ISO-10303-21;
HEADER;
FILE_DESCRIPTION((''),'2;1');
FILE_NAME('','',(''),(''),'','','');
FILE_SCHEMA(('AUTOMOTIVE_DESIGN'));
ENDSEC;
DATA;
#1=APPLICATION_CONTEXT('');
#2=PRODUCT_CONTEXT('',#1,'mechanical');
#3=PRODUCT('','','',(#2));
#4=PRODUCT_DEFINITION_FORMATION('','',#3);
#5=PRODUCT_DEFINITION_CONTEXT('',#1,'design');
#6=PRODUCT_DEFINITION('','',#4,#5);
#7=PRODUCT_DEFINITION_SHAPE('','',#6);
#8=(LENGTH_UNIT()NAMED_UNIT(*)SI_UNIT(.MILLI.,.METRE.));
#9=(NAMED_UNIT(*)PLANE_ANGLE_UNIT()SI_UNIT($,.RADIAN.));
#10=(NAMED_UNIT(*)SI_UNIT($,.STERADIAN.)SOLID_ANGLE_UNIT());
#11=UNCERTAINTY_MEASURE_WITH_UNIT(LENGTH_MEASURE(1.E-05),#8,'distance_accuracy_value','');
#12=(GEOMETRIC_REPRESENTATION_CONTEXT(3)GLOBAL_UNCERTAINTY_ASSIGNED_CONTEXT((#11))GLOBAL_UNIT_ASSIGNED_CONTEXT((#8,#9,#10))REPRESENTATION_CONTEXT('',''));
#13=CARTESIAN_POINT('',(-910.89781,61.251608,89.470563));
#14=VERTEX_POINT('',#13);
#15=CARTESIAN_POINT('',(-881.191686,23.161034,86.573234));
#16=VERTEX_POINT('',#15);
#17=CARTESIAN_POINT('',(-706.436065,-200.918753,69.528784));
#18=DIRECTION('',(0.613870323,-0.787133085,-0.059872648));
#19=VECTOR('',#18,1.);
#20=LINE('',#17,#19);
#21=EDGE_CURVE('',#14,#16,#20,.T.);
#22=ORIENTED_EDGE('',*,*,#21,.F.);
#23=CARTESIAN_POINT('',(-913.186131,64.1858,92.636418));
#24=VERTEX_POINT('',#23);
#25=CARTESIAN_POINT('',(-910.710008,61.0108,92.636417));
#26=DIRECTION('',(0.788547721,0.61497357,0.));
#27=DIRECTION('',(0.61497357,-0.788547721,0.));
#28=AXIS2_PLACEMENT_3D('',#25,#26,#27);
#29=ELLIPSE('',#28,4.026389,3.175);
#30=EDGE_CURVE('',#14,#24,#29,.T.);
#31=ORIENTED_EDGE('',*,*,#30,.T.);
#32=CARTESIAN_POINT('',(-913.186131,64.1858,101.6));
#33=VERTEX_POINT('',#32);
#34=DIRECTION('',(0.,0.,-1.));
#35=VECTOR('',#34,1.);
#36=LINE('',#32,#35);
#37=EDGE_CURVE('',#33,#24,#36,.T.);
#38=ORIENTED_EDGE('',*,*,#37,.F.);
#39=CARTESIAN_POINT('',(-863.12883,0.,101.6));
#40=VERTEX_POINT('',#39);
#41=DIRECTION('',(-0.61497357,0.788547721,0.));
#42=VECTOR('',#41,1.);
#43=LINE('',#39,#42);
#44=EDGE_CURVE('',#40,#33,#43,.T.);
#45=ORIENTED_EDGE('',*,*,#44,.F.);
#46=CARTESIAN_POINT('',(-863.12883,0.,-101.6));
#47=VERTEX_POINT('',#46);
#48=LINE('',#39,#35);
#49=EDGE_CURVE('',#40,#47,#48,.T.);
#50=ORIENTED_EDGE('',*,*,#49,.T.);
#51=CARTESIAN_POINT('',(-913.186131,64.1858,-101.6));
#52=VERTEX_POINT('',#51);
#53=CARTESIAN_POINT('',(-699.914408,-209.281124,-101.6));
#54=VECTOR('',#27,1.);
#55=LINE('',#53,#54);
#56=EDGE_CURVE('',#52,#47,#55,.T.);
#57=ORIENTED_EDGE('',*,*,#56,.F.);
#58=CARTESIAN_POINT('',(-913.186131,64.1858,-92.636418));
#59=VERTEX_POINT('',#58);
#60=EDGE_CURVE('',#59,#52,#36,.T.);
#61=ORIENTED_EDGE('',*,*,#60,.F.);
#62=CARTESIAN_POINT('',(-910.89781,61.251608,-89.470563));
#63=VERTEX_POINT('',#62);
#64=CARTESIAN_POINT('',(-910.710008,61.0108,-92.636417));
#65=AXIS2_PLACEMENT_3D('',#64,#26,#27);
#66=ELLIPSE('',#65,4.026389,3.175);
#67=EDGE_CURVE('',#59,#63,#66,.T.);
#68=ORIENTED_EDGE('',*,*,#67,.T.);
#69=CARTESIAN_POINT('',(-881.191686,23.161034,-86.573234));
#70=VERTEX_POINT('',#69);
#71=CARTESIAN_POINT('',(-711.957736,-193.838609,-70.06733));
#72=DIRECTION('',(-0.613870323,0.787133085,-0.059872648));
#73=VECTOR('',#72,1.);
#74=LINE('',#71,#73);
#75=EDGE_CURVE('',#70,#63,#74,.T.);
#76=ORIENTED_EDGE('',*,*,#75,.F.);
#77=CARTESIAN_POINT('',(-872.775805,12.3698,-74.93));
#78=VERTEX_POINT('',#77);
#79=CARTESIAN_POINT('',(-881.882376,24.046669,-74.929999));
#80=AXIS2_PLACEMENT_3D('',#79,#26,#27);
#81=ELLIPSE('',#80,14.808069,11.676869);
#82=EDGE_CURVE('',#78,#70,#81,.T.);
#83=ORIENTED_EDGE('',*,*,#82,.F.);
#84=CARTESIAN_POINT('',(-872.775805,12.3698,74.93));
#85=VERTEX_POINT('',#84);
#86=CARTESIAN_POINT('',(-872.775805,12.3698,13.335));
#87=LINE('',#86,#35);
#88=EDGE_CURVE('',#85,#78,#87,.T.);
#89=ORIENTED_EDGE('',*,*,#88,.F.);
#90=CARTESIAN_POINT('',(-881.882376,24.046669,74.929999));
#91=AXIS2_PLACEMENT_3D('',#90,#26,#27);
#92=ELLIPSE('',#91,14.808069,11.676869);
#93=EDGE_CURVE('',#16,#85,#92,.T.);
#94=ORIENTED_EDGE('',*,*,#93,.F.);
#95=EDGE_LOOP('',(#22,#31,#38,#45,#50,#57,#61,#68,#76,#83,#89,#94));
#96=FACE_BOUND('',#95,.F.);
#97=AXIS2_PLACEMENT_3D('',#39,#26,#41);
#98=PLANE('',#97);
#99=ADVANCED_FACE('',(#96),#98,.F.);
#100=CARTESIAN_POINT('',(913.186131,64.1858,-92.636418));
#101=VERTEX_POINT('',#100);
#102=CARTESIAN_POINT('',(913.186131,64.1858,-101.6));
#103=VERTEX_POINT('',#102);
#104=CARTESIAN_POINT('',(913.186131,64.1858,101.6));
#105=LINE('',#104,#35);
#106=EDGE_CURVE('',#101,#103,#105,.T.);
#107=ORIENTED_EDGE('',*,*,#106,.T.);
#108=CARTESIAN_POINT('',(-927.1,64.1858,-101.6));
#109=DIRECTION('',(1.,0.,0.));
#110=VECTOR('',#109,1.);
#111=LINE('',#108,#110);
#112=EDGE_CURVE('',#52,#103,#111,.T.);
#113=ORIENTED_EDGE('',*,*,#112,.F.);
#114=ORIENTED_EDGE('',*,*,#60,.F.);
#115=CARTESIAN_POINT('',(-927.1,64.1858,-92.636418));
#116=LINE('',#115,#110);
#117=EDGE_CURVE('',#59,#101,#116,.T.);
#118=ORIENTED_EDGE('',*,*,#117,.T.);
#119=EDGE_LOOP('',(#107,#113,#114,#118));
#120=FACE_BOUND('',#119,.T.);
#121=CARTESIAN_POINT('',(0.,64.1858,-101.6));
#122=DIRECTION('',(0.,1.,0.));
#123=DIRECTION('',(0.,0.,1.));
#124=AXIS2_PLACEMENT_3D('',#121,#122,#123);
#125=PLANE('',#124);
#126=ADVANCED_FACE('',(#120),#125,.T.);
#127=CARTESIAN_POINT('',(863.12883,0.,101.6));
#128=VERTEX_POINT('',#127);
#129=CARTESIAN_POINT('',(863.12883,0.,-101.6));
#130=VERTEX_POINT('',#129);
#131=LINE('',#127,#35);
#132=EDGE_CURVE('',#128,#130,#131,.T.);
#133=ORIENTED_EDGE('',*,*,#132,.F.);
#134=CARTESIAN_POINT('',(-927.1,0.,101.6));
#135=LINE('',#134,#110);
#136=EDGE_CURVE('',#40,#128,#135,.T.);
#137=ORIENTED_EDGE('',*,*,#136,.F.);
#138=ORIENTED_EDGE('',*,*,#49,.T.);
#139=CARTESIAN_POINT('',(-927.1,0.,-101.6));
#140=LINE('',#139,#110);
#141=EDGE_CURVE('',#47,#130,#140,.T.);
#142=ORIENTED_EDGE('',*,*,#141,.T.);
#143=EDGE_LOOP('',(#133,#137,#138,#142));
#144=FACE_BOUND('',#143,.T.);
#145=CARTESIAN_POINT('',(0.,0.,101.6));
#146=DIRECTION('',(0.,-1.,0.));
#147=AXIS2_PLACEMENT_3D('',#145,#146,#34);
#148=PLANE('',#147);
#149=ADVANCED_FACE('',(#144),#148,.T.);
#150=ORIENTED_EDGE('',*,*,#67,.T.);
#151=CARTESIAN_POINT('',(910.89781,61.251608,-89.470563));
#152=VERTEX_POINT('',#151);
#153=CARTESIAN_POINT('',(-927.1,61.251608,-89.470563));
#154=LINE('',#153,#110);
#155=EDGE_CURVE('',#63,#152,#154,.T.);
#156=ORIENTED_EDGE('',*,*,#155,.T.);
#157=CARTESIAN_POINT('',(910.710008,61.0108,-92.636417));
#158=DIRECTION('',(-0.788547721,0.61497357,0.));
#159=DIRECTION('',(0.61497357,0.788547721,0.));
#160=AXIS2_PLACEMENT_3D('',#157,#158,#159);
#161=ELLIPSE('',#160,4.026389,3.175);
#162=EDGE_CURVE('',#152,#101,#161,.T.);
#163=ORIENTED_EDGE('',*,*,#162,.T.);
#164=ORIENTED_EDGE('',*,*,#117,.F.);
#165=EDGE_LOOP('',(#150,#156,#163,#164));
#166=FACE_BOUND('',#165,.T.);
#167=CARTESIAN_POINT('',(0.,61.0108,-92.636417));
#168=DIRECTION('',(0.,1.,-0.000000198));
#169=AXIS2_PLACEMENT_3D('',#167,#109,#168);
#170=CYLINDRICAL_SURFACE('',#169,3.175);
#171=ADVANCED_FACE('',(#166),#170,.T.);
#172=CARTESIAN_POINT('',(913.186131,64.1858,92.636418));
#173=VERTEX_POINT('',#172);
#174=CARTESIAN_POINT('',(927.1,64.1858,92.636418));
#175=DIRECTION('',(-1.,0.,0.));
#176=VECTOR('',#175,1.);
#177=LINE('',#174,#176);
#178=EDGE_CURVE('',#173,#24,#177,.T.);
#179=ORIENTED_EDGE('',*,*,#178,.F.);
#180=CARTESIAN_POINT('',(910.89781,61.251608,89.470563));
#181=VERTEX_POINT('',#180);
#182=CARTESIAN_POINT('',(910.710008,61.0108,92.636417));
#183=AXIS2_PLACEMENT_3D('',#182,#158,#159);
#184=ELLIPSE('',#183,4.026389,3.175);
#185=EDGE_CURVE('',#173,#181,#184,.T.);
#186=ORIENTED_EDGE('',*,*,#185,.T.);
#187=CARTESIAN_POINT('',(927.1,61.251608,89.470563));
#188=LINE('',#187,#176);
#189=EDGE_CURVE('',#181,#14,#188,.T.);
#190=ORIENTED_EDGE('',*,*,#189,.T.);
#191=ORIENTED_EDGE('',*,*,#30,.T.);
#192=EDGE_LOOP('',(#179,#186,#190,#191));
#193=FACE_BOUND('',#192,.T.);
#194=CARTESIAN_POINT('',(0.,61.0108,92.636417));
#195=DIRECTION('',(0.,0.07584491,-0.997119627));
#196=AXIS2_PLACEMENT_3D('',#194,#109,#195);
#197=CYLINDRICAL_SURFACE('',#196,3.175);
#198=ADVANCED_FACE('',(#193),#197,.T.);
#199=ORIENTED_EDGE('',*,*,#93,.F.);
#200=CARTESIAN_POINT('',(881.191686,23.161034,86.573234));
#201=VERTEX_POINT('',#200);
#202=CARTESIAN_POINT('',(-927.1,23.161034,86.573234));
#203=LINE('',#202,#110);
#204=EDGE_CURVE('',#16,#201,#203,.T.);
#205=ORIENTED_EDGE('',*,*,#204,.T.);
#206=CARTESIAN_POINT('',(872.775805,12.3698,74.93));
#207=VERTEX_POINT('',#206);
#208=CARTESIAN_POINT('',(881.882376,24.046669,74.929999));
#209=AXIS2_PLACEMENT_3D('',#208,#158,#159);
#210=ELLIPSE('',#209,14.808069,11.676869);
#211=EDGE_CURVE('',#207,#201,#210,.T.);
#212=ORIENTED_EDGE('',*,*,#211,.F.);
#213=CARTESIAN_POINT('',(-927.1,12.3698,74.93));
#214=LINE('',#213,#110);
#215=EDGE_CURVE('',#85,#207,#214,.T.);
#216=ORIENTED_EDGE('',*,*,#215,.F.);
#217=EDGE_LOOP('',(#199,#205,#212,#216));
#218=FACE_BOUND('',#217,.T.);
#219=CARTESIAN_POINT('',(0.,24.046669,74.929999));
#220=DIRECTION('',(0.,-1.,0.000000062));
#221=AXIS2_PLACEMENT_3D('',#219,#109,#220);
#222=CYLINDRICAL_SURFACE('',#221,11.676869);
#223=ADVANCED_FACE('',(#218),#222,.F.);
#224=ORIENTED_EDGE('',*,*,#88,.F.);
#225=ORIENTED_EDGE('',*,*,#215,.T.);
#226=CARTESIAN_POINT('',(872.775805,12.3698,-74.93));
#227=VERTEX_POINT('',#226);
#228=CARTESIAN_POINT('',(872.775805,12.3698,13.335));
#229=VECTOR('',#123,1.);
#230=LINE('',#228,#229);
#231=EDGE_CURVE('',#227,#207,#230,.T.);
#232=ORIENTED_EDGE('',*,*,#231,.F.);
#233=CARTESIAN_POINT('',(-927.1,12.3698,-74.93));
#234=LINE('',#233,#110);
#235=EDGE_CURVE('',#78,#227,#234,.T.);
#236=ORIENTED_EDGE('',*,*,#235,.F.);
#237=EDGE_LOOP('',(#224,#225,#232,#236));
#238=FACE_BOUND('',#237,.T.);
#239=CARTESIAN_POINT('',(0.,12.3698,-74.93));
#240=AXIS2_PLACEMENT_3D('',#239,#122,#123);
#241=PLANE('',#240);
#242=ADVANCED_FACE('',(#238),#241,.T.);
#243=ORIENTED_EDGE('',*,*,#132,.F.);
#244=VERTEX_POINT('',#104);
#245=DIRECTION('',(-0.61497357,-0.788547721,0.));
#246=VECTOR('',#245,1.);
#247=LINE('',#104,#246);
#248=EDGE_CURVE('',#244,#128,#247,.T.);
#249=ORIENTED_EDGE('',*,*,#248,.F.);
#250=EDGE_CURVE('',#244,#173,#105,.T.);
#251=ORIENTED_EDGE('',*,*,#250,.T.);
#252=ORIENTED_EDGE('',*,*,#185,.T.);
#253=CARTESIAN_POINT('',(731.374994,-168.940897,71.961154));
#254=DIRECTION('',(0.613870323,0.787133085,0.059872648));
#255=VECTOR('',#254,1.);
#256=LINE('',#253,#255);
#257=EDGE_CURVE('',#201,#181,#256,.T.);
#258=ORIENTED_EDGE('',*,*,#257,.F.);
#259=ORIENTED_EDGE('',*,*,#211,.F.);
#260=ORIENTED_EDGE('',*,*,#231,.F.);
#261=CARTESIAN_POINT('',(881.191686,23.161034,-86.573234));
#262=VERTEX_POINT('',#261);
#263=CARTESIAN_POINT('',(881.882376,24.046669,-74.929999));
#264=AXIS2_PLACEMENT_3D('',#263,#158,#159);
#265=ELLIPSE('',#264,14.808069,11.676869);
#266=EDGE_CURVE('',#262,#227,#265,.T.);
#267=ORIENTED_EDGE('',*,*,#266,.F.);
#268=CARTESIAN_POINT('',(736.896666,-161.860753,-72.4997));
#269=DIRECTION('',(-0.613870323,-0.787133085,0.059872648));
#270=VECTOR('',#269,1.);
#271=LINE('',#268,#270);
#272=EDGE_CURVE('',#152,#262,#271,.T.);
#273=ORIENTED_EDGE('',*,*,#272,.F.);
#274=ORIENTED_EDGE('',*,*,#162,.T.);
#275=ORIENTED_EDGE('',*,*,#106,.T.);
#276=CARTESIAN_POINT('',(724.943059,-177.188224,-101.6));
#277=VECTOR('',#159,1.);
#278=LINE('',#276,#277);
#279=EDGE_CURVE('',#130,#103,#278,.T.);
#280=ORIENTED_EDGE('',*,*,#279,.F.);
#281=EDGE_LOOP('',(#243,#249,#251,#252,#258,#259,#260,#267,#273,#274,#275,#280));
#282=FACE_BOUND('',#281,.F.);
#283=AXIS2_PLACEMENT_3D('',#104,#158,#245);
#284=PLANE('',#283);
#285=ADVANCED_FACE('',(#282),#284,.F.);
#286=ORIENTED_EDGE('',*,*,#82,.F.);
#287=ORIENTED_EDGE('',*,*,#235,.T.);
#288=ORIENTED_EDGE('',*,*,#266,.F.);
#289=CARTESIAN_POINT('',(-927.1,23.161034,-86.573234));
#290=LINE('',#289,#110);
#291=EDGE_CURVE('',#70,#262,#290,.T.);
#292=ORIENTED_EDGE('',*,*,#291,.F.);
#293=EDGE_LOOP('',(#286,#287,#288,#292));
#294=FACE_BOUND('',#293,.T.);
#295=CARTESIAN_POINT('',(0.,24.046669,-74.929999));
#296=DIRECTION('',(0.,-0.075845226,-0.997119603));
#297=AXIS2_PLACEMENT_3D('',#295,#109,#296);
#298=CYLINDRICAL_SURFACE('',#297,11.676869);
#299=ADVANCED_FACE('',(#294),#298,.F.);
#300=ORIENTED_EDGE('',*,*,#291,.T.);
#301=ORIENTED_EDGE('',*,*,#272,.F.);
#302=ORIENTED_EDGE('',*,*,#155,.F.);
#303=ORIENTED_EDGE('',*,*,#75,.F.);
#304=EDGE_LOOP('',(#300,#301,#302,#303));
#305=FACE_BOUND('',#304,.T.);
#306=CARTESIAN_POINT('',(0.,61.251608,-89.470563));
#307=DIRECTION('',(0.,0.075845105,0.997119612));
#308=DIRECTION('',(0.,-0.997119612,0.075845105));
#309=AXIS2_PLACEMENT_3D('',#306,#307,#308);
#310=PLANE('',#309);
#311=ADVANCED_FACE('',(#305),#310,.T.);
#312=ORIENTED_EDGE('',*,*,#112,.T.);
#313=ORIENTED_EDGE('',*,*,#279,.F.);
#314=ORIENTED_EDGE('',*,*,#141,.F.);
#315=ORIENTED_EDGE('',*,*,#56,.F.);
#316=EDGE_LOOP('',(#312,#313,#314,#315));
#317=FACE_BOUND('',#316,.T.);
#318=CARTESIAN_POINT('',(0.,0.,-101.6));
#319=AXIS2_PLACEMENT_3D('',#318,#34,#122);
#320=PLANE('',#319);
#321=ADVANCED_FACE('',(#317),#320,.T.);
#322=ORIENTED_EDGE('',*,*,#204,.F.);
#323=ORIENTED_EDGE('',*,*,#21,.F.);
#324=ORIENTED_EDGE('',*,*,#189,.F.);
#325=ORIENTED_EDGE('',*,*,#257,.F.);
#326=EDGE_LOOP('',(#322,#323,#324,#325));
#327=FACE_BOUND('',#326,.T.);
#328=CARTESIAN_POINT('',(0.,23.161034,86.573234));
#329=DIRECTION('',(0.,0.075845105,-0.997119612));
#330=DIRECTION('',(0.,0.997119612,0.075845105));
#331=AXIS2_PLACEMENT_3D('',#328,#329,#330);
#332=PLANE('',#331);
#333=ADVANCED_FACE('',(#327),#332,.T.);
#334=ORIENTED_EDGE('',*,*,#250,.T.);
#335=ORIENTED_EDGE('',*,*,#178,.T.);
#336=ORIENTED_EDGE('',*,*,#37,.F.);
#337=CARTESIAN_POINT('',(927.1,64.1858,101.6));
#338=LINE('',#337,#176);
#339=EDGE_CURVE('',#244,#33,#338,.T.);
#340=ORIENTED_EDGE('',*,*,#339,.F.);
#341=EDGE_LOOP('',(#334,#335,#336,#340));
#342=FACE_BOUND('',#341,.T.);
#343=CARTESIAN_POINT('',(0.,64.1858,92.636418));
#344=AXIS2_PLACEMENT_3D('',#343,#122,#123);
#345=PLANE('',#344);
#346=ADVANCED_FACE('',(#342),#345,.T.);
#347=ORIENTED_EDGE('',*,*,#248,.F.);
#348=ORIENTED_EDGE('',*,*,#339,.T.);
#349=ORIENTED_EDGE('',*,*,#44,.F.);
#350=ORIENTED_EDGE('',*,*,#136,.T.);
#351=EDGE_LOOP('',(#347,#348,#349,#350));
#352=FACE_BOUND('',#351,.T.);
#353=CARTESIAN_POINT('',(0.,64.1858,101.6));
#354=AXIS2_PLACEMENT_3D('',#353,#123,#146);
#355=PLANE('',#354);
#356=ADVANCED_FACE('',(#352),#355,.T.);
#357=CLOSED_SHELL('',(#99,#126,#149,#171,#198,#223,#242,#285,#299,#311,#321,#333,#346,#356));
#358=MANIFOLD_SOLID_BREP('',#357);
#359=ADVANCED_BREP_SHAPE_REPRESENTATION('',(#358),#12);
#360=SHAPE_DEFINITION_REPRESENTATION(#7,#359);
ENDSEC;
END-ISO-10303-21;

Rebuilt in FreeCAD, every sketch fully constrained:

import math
import FreeCAD as App
import Part
import Sketcher

V = App.Vector
Q = App.Units.Quantity

doc = App.newDocument("Part")
params = doc.addObject("Spreadsheet::Sheet", "Params")
for row, (alias, value) in enumerate([
    ("sketch1_height", "8 in"),
    ("sketch1_height2", "5.9 in"),
    ("sketch1_radius", "0.125 in"),
    ("sketch1_width", "2.527 in"),
    ("pad1_length", "73 in"),
    ("sketch2_height", "2.527 in"),
], start=1):
    params.set(f"A{row}", alias)
    params.set(f"B{row}", "=" + value)
    params.setAlias(f"B{row}", alias)

body = doc.addObject("PartDesign::Body", "Body")

sketch1 = doc.addObject("Sketcher::SketchObject", "Sketch")
body.addObject(sketch1)
sketch1.AttachmentSupport = (doc.YZ_Plane, [""])
sketch1.MapMode = "FlatFace"
sketch1.addGeometry([
    Part.LineSegment(V(64.1858, 101.6, 0), V(0, 101.6, 0)),
    Part.LineSegment(V(0, 101.6, 0), V(0, -101.6, 0)),
    Part.LineSegment(V(0, -101.6, 0), V(64.1858, -101.6, 0)),
    Part.LineSegment(V(64.1858, -101.6, 0), V(64.1858, -92.636418, 0)),
    Part.ArcOfCircle(Part.Circle(V(61.0108, -92.636417, 0), V(0, 0, 1), 3.175), math.radians(-0.000011), math.radians(85.65023)),
    Part.LineSegment(V(61.251608, -89.470563, 0), V(23.161034, -86.573234, 0)),
    Part.ArcOfCircle(Part.Circle(V(24.046669, -74.929999, 0), V(0, 0, 1), 11.676869), math.radians(-179.999996), math.radians(-94.349788)),
    Part.LineSegment(V(12.3698, -74.93, 0), V(12.3698, 74.93, 0)),
    Part.ArcOfCircle(Part.Circle(V(24.046669, 74.929999, 0), V(0, 0, 1), 11.676869), math.radians(94.349788), math.radians(179.999996)),
    Part.LineSegment(V(23.161034, 86.573234, 0), V(61.251608, 89.470563, 0)),
    Part.ArcOfCircle(Part.Circle(V(61.0108, 92.636417, 0), V(0, 0, 1), 3.175), math.radians(-85.65023), math.radians(0.000011)),
    Part.LineSegment(V(64.1858, 92.636418, 0), V(64.1858, 101.6, 0)),
], False)
sketch1.addConstraint([
    Sketcher.Constraint("Coincident", 0, 2, 1, 1),
    Sketcher.Constraint("Coincident", 1, 2, 2, 1),
    Sketcher.Constraint("Coincident", 2, 2, 3, 1),
    Sketcher.Constraint("Tangent", 3, 2, 4, 1),
    Sketcher.Constraint("Tangent", 4, 2, 5, 1),
    Sketcher.Constraint("Tangent", 5, 2, 6, 2),
    Sketcher.Constraint("Tangent", 6, 1, 7, 1),
    Sketcher.Constraint("Tangent", 7, 2, 8, 2),
    Sketcher.Constraint("Tangent", 8, 1, 9, 1),
    Sketcher.Constraint("Tangent", 9, 2, 10, 1),
    Sketcher.Constraint("Tangent", 10, 2, 11, 1),
    Sketcher.Constraint("Coincident", 11, 2, 0, 1),
    Sketcher.Constraint("Horizontal", 0),
    Sketcher.Constraint("Vertical", 1),
    Sketcher.Constraint("Horizontal", 2),
    Sketcher.Constraint("Vertical", 3),
    Sketcher.Constraint("Vertical", 7),
    Sketcher.Constraint("Vertical", 11),
    Sketcher.Constraint("Equal", 6, 8),
    Sketcher.Constraint("Equal", 4, 10),
    Sketcher.Constraint("Symmetric", 0, 2, 1, 2, -1, 1),
    Sketcher.Constraint("Symmetric", 4, 3, 10, 3, -1),
    Sketcher.Constraint("Vertical", 5, 2, 8, 1),
    Sketcher.Constraint("DistanceY", 1, 2, 1, 1, Q("8 in")),
    Sketcher.Constraint("DistanceY", 7, 1, 7, 2, Q("5.9 in")),
    Sketcher.Constraint("Radius", 4, Q("0.125 in")),
    Sketcher.Constraint("DistanceX", 0, 2, 0, 1, Q("2.527 in")),
    Sketcher.Constraint("DistanceX", 7, 2, 10, 2, Q("2.04 in")),
    Sketcher.Constraint("Radius", 6, 11.676869),
    Sketcher.Constraint("DistanceY", 3, 1, 3, 2, 8.963582),
])
sketch1.setExpression("Constraints[23]", "Params.sketch1_height")
sketch1.setExpression("Constraints[24]", "Params.sketch1_height2")
sketch1.setExpression("Constraints[25]", "Params.sketch1_radius")
sketch1.setExpression("Constraints[26]", "Params.sketch1_width")
pad1 = doc.addObject("PartDesign::Pad", "Pad")
body.addObject(pad1)
pad1.Profile = sketch1
pad1.setExpression("Length", "Params.pad1_length")
pad1.Midplane = True

sketch2 = doc.addObject("Sketcher::SketchObject", "Sketch001")
body.addObject(sketch2)
sketch2.AttachmentSupport = (doc.XY_Plane, [""])
sketch2.MapMode = "FlatFace"
sketch2.AttachmentOffset = App.Placement(V(0, 0, 4 * 25.4), App.Rotation())
sketch2.addGeometry([
    Part.LineSegment(V(-913.186131, 64.1858, 0), V(-927.1, 64.1858, 0)),
    Part.LineSegment(V(-927.1, 64.1858, 0), V(-927.1, 0, 0)),
    Part.LineSegment(V(-927.1, 0, 0), V(-863.12883, 0, 0)),
    Part.LineSegment(V(-863.12883, 0, 0), V(-913.186131, 64.1858, 0)),
    Part.LineSegment(V(927.1, 0, 0), V(927.1, 64.1858, 0)),
    Part.LineSegment(V(927.1, 64.1858, 0), V(913.186131, 64.1858, 0)),
    Part.LineSegment(V(913.186131, 64.1858, 0), V(863.12883, 0, 0)),
    Part.LineSegment(V(863.12883, 0, 0), V(927.1, 0, 0)),
], False)
sketch2.addConstraint([
    Sketcher.Constraint("Coincident", 0, 2, 1, 1),
    Sketcher.Constraint("Coincident", 1, 2, 2, 1),
    Sketcher.Constraint("Coincident", 2, 2, 3, 1),
    Sketcher.Constraint("Coincident", 3, 2, 0, 1),
    Sketcher.Constraint("Coincident", 4, 2, 5, 1),
    Sketcher.Constraint("Coincident", 5, 2, 6, 1),
    Sketcher.Constraint("Coincident", 6, 2, 7, 1),
    Sketcher.Constraint("Coincident", 7, 2, 4, 1),
    Sketcher.Constraint("Horizontal", 0),
    Sketcher.Constraint("Vertical", 1),
    Sketcher.Constraint("Horizontal", 2),
    Sketcher.Constraint("Vertical", 4),
    Sketcher.Constraint("Horizontal", 5),
    Sketcher.Constraint("Horizontal", 7),
    Sketcher.Constraint("Symmetric", 2, 2, 6, 2, -1, 1),
    Sketcher.Constraint("Symmetric", 0, 2, 4, 2, -2),
    Sketcher.Constraint("PointOnObject", 1, 2, -1),
    Sketcher.Constraint("Equal", 0, 5),
    Sketcher.Constraint("DistanceX", 0, 2, 4, 2, Q("73 in")),
    Sketcher.Constraint("DistanceY", 1, 2, 1, 1, Q("2.527 in")),
    Sketcher.Constraint("Angle", 3, Q("127.95 deg")),
    Sketcher.Constraint("DistanceX", 2, 2, 6, 2, Q("67.9629 in")),
])
sketch2.setExpression("Constraints[19]", "Params.sketch2_height")
pocket1 = doc.addObject("PartDesign::Pocket", "Pocket")
body.addObject(pocket1)
pocket1.Profile = sketch2
pocket1.Type = "ThroughAll"

doc.recompute()
